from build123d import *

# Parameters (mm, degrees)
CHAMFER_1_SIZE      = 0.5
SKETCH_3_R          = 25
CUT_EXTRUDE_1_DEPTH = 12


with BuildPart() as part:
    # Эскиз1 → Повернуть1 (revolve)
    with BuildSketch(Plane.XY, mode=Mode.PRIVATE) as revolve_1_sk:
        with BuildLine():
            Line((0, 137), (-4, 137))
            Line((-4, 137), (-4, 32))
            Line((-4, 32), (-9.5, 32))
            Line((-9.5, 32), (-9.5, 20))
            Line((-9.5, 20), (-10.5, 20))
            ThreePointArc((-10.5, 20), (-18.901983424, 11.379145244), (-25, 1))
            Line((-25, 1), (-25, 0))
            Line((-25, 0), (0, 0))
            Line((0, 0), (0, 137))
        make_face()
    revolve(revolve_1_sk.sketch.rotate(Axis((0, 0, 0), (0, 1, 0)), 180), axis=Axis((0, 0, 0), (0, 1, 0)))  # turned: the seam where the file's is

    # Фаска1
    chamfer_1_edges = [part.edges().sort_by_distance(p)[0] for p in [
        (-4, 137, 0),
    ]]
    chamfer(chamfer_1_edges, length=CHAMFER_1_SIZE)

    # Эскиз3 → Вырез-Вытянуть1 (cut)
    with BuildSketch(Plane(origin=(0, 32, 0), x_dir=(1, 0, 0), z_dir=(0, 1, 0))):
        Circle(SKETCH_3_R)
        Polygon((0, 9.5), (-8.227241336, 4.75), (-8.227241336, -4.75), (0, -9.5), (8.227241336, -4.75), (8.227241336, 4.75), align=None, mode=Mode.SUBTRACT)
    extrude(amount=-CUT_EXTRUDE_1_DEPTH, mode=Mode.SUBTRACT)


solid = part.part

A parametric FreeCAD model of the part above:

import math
import FreeCAD as App
import Part
import Sketcher
from FreeCAD import Vector
Q = App.Units.Quantity


def edges_at(feature, points):
    """Names of the edges that pass closest to the given points."""
    edges = feature.Shape.Edges
    near = lambda p: min(range(len(edges)), key=lambda i: edges[i].distToShape(Part.Vertex(*p))[0])
    return sorted({f"Edge{near(p) + 1}" for p in points})

doc = App.newDocument("Part")
body = doc.addObject("PartDesign::Body", "Body")

# Sketch on XY plane
sketch1 = body.newObject("Sketcher::SketchObject", "Sketch")
sketch1.AttachmentSupport = (doc.getObject("XY_Plane"), [""])
sketch1.MapMode = "FlatFace"
sketch1.addGeometry(Part.LineSegment(Vector(0, 137, 0), Vector(-4, 137, 0)), False)
sketch1.addGeometry(Part.LineSegment(Vector(-4, 137, 0), Vector(-4, 32, 0)), False)
sketch1.addGeometry(Part.LineSegment(Vector(-4, 32, 0), Vector(-9.5, 32, 0)), False)
sketch1.addGeometry(Part.LineSegment(Vector(-9.5, 32, 0), Vector(-9.5, 20, 0)), False)
sketch1.addGeometry(Part.LineSegment(Vector(-9.5, 20, 0), Vector(-10.5, 20, 0)), False)
sketch1.addGeometry(Part.ArcOfCircle(Part.Circle(Vector(20.8, -19, 0), Vector(0, 0, 1), 50), math.radians(129), math.radians(156)), False)
sketch1.addGeometry(Part.LineSegment(Vector(-25, 1, 0), Vector(-25, 0, 0)), False)
sketch1.addGeometry(Part.LineSegment(Vector(-25, 0, 0), Vector(0, 0, 0)), False)
sketch1.addGeometry(Part.LineSegment(Vector(0, 0, 0), Vector(0, 137, 0)), False)
sketch1.addConstraint(Sketcher.Constraint("Coincident", 0, 2, 1, 1))
sketch1.addConstraint(Sketcher.Constraint("Coincident", 1, 2, 2, 1))
sketch1.addConstraint(Sketcher.Constraint("Coincident", 2, 2, 3, 1))
sketch1.addConstraint(Sketcher.Constraint("Coincident", 3, 2, 4, 1))
sketch1.addConstraint(Sketcher.Constraint("Coincident", 4, 2, 5, 1))
sketch1.addConstraint(Sketcher.Constraint("Coincident", 5, 2, 6, 1))
sketch1.addConstraint(Sketcher.Constraint("Coincident", 6, 2, 7, 1))
sketch1.addConstraint(Sketcher.Constraint("Coincident", 7, 2, 8, 1))
sketch1.addConstraint(Sketcher.Constraint("Coincident", 8, 2, 0, 1))
sketch1.addConstraint(Sketcher.Constraint("Horizontal", 0))
sketch1.addConstraint(Sketcher.Constraint("Vertical", 1))
sketch1.addConstraint(Sketcher.Constraint("Horizontal", 2))
sketch1.addConstraint(Sketcher.Constraint("Vertical", 3))
sketch1.addConstraint(Sketcher.Constraint("Horizontal", 4))
sketch1.addConstraint(Sketcher.Constraint("Vertical", 6))
sketch1.addConstraint(Sketcher.Constraint("Horizontal", 7))
sketch1.addConstraint(Sketcher.Constraint("Vertical", 8))
sketch1.addConstraint(Sketcher.Constraint("Coincident", 7, 2, -1, 1))
sketch1.addConstraint(Sketcher.Constraint("Equal", 4, 6))
sketch1.addConstraint(Sketcher.Constraint("Radius", 5, Q("50 mm")))
sketch1.addConstraint(Sketcher.Constraint("DistanceX", 0, 2, 0, 1, Q("4 mm")))
sketch1.addConstraint(Sketcher.Constraint("DistanceX", 4, 2, 4, 1, Q("1 mm")))
sketch1.addConstraint(Sketcher.Constraint("DistanceX", 7, 1, 7, 2, Q("25 mm")))
sketch1.addConstraint(Sketcher.Constraint("DistanceY", 1, 2, 1, 1, Q("105 mm")))
sketch1.addConstraint(Sketcher.Constraint("DistanceY", 3, 2, 3, 1, Q("12 mm")))
sketch1.addConstraint(Sketcher.Constraint("DistanceY", 8, 1, 8, 2, Q("137 mm")))
sketch1.addConstraint(Sketcher.Constraint("DistanceX", 2, 2, 2, 1, Q("5.5 mm")))
revolution = body.newObject("PartDesign::Revolution", "Revolution")
revolution.Profile = sketch1
revolution.ReferenceAxis = (sketch1, ["V_Axis"])
revolution.Angle = 360
doc.recompute()

chamfer = body.newObject("PartDesign::Chamfer", "Chamfer")
chamfer.Base = (revolution, edges_at(revolution, [(-4, 137, 0)]))
chamfer.Size = 0.5

# Sketch on XZ plane
sketch2 = body.newObject("Sketcher::SketchObject", "Sketch001")
sketch2.AttachmentSupport = (doc.getObject("XZ_Plane"), [""])
sketch2.MapMode = "FlatFace"
sketch2.AttachmentOffset = App.Placement(Vector(0, 0, -32), App.Rotation())
sketch2.addGeometry(Part.Circle(Vector(0, 0, 0), Vector(0, 0, 1), 25), False)
sketch2.addGeometry(Part.LineSegment(Vector(-8, -5, 0), Vector(0, -10, 0)), False)
sketch2.addGeometry(Part.LineSegment(Vector(0, -10, 0), Vector(8, -5, 0)), False)
sketch2.addGeometry(Part.LineSegment(Vector(8, -5, 0), Vector(8, 5, 0)), False)
sketch2.addGeometry(Part.LineSegment(Vector(8, 5, 0), Vector(0, 10, 0)), False)
sketch2.addGeometry(Part.LineSegment(Vector(0, 10, 0), Vector(-8, 5, 0)), False)
sketch2.addGeometry(Part.LineSegment(Vector(-8, 5, 0), Vector(-8, -5, 0)), False)
sketch2.addConstraint(Sketcher.Constraint("Coincident", 1, 2, 2, 1))
sketch2.addConstraint(Sketcher.Constraint("Coincident", 2, 2, 3, 1))
sketch2.addConstraint(Sketcher.Constraint("Coincident", 3, 2, 4, 1))
sketch2.addConstraint(Sketcher.Constraint("Coincident", 4, 2, 5, 1))
sketch2.addConstraint(Sketcher.Constraint("Coincident", 5, 2, 6, 1))
sketch2.addConstraint(Sketcher.Constraint("Coincident", 6, 2, 1, 1))
sketch2.addConstraint(Sketcher.Constraint("Vertical", 3))
sketch2.addConstraint(Sketcher.Constraint("Vertical", 6))
sketch2.addConstraint(Sketcher.Constraint("Coincident", 0, 3, -1, 1))
sketch2.addConstraint(Sketcher.Constraint("Symmetric", 1, 2, 4, 2, -1, 1))
sketch2.addConstraint(Sketcher.Constraint("Symmetric", 2, 2, 5, 2, -1, 1))
sketch2.addConstraint(Sketcher.Constraint("PointOnObject", 1, 2, -2))
sketch2.addConstraint(Sketcher.Constraint("Parallel", 1, 4))
sketch2.addConstraint(Sketcher.Constraint("Horizontal", 3, 2, 5, 2))
sketch2.addConstraint(Sketcher.Constraint("Diameter", 0, Q("50 mm")))
sketch2.addConstraint(Sketcher.Constraint("Angle", 1, Q("-30 deg")))
sketch2.addConstraint(Sketcher.Constraint("DistanceY", 3, 1, 3, 2, Q("9.5 mm")))
sketch2.addConstraint(Sketcher.Constraint("DistanceY", 1, 2, 4, 2, Q("19 mm")))
pocket1 = body.newObject("PartDesign::Pocket", "Pocket")
pocket1.Profile = sketch2
pocket1.Length = 12
pocket1.Reversed = True

doc.recompute()
